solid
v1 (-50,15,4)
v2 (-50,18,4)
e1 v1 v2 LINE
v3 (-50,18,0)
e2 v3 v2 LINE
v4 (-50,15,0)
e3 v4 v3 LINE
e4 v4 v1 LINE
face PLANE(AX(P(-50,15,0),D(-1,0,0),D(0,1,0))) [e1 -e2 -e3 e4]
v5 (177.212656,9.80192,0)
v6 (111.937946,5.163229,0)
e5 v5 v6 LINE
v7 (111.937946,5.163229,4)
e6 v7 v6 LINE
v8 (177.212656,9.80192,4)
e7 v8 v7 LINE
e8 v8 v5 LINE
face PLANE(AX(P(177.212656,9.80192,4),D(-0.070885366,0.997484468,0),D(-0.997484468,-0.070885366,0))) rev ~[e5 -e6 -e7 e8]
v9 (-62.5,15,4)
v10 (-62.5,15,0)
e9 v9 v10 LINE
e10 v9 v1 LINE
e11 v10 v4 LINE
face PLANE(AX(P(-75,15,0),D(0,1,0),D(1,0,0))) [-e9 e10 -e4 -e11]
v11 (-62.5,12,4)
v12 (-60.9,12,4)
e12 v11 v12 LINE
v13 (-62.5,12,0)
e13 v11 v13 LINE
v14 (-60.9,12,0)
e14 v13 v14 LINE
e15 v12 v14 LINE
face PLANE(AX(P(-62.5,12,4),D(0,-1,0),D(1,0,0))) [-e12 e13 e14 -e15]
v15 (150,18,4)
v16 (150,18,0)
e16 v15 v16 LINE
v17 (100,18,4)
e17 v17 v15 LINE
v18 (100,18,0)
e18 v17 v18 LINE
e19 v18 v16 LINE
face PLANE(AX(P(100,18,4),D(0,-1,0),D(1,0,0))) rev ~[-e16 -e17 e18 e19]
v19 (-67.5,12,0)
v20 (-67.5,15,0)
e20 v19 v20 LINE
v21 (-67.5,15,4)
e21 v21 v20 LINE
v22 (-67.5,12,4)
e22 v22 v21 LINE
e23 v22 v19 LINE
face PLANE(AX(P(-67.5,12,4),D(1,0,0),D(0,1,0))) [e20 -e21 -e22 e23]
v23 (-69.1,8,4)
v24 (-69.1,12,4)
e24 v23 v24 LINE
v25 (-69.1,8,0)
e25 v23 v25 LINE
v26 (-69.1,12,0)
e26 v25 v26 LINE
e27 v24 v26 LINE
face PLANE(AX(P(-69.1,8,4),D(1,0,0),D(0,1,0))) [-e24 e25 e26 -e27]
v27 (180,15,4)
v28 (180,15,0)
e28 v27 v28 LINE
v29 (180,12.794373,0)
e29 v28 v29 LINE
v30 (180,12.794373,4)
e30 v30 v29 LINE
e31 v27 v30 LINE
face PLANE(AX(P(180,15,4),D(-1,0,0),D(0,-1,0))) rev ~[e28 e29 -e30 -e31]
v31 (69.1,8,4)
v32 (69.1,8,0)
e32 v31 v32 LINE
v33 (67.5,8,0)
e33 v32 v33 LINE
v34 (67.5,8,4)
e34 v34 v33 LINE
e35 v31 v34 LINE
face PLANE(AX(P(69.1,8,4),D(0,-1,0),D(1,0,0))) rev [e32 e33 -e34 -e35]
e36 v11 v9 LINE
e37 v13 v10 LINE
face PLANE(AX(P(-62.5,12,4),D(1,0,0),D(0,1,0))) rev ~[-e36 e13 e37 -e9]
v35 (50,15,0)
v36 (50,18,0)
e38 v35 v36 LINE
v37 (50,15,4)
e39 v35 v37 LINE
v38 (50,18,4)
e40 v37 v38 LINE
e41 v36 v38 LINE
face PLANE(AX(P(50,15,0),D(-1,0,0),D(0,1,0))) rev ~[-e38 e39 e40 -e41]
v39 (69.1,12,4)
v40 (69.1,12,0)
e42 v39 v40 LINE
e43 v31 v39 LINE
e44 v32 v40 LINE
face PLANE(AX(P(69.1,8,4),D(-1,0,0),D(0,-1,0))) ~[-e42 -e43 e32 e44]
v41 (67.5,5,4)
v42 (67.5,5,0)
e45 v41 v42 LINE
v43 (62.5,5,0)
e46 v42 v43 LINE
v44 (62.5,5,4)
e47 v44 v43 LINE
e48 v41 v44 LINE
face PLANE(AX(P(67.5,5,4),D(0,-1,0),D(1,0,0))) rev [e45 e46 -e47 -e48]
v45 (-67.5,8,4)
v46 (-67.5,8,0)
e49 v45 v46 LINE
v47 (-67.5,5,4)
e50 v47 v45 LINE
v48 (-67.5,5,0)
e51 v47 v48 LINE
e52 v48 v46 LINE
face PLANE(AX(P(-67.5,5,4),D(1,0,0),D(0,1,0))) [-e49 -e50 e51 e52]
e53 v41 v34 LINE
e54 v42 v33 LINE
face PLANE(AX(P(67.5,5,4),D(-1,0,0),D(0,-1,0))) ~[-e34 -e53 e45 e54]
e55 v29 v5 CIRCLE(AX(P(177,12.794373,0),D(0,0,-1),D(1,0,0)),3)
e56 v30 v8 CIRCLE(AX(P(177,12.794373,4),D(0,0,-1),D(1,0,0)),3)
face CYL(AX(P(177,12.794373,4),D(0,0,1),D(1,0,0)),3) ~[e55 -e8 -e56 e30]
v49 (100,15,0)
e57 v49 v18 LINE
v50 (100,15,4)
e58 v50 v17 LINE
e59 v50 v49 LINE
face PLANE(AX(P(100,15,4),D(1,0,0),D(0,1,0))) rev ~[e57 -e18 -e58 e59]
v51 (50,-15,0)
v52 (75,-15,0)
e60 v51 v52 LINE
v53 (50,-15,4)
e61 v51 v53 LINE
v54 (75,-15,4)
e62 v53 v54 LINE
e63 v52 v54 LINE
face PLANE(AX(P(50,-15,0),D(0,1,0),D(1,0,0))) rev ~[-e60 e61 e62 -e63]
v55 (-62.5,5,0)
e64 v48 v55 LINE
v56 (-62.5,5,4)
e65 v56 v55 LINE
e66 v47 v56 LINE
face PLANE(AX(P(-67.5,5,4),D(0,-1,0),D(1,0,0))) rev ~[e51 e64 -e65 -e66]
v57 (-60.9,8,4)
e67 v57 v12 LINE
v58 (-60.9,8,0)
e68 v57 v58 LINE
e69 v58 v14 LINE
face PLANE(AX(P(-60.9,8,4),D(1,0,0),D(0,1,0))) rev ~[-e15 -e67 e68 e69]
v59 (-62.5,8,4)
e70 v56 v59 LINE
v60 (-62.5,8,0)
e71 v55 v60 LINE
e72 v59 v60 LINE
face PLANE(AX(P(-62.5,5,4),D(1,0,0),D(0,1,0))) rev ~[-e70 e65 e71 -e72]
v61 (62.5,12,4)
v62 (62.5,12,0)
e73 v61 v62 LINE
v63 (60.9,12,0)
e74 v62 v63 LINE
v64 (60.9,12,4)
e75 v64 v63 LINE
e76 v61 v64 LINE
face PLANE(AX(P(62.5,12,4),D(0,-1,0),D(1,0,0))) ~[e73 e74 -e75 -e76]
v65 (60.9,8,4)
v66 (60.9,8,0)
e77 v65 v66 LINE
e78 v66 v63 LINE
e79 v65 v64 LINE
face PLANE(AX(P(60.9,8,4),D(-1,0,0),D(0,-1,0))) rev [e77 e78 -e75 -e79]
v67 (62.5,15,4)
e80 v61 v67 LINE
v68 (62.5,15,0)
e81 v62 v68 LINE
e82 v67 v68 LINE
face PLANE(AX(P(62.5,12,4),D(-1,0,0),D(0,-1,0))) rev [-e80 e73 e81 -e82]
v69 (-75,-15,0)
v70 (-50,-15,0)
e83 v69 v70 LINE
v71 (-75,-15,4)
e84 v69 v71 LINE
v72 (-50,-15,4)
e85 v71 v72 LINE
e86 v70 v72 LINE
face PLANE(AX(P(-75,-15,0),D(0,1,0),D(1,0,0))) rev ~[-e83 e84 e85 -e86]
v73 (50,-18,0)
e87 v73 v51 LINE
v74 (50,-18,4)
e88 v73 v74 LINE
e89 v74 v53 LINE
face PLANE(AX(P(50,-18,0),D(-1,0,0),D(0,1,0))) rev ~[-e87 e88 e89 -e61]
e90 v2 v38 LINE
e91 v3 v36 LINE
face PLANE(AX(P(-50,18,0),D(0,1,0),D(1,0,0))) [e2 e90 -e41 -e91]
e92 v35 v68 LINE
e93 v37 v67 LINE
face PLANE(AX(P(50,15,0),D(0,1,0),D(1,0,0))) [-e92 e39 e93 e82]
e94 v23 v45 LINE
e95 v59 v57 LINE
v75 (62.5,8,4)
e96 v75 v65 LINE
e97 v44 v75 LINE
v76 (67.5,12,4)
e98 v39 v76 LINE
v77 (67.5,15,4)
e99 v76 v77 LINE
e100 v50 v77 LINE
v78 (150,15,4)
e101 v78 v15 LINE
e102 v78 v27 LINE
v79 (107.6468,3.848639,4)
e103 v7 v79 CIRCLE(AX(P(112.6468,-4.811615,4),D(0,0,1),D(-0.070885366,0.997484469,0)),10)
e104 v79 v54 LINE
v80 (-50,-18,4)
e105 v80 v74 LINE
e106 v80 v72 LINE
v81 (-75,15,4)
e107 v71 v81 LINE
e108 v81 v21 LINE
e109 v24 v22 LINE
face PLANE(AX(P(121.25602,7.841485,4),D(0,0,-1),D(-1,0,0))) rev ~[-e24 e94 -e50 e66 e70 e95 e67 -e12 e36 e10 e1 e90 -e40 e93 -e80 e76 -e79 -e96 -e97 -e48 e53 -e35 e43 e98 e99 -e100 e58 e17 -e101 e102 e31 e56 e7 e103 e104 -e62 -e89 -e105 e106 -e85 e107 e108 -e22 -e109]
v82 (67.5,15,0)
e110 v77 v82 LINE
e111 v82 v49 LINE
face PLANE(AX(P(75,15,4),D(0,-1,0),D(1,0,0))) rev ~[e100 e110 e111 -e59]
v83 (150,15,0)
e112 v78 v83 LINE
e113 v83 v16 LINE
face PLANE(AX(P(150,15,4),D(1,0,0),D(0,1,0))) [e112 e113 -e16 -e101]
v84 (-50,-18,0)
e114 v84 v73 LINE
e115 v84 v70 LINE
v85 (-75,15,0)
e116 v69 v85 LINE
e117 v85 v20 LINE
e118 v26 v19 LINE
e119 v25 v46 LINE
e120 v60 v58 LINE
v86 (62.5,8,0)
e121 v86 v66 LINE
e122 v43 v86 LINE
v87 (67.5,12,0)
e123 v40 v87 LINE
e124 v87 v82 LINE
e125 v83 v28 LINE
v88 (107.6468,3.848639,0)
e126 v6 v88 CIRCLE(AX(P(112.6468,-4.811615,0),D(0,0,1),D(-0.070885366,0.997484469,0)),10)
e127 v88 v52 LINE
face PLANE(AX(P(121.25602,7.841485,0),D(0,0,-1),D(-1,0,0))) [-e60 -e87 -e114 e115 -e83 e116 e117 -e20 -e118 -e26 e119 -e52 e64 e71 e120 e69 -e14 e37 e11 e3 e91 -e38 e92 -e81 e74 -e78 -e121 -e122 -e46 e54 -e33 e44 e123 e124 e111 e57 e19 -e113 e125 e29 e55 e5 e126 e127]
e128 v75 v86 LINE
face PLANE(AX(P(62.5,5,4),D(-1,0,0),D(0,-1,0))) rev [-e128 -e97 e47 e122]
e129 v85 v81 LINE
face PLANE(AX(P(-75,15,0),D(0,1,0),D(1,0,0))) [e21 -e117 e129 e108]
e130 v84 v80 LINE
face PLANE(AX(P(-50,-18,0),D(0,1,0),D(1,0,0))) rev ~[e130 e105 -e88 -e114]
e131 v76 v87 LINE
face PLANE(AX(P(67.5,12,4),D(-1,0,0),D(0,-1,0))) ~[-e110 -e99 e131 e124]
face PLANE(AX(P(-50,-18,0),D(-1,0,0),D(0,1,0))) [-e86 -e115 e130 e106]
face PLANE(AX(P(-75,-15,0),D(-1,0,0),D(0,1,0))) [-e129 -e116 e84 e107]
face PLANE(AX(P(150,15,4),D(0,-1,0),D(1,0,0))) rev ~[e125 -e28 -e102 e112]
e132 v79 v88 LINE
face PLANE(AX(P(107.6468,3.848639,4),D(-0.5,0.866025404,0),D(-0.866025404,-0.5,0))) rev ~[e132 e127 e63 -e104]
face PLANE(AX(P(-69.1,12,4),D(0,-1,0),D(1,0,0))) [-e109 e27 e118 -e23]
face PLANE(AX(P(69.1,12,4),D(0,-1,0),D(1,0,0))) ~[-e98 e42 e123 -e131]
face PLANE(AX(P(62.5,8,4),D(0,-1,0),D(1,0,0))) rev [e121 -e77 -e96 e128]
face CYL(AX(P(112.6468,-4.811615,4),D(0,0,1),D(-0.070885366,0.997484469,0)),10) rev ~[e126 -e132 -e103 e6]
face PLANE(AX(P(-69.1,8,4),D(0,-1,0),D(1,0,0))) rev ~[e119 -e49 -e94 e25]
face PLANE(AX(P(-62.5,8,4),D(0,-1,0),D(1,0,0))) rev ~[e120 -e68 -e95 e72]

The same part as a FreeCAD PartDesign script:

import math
import FreeCAD as App
import Part
import Sketcher
from FreeCAD import Vector
Q = App.Units.Quantity


def add_polygon(sketch, points):
    """Adds a closed chain of lines whose ends are joined by coincident constraints."""
    first, n = sketch.GeometryCount, len(points)
    for a, b in zip(points, points[1:] + points[:1]):
        sketch.addGeometry(Part.LineSegment(App.Vector(*a, 0), App.Vector(*b, 0)), False)
    for i in range(n):
        sketch.addConstraint(Sketcher.Constraint("Coincident", first + i, 2, first + (i + 1) % n, 1))

doc = App.newDocument("Part")
body = doc.addObject("PartDesign::Body", "Body")

sketch1 = doc.addObject("Sketcher::SketchObject", "Sketch")
body.addObject(sketch1)
sketch1.AttachmentSupport = (doc.XY_Plane, [""])
sketch1.MapMode = "FlatFace"
add_polygon(sketch1, [(-75, 15), (-75, -15), (-50, -15), (-50, -18), (50, -18), (50, -15), (75, -15), (75, 15), (50, 15), (50, 18), (-50, 18), (-50, 15)])
sketch1.addConstraint(Sketcher.Constraint("Vertical", 0))
sketch1.addConstraint(Sketcher.Constraint("Horizontal", 1))
sketch1.addConstraint(Sketcher.Constraint("Vertical", 2))
sketch1.addConstraint(Sketcher.Constraint("Horizontal", 3))
sketch1.addConstraint(Sketcher.Constraint("Vertical", 4))
sketch1.addConstraint(Sketcher.Constraint("Horizontal", 5))
sketch1.addConstraint(Sketcher.Constraint("Vertical", 6))
sketch1.addConstraint(Sketcher.Constraint("Horizontal", 7))
sketch1.addConstraint(Sketcher.Constraint("Vertical", 8))
sketch1.addConstraint(Sketcher.Constraint("Horizontal", 9))
sketch1.addConstraint(Sketcher.Constraint("Vertical", 10))
sketch1.addConstraint(Sketcher.Constraint("Horizontal", 11))
sketch1.addConstraint(Sketcher.Constraint("Symmetric", 0, 2, 6, 2, -1, 1))
sketch1.addConstraint(Sketcher.Constraint("Symmetric", 2, 2, 8, 2, -1, 1))
sketch1.addConstraint(Sketcher.Constraint("Symmetric", 4, 2, 10, 2, -1, 1))
sketch1.addConstraint(Sketcher.Constraint("Symmetric", 1, 2, 4, 2, -2))
sketch1.addConstraint(Sketcher.Constraint("DistanceX", 1, 1, 1, 2, Q("25 mm")))
sketch1.addConstraint(Sketcher.Constraint("DistanceX", 3, 1, 3, 2, Q("100 mm")))
sketch1.addConstraint(Sketcher.Constraint("DistanceY", 0, 2, 0, 1, Q("30 mm")))
sketch1.addConstraint(Sketcher.Constraint("DistanceY", 2, 2, 2, 1, Q("3 mm")))
pad1 = doc.addObject("PartDesign::Pad", "Pad")
body.addObject(pad1)
pad1.Profile = sketch1
pad1.Length = 4

sketch2 = doc.addObject("Sketcher::SketchObject", "Sketch001")
body.addObject(sketch2)
sketch2.AttachmentSupport = (doc.XY_Plane, [""])
sketch2.MapMode = "FlatFace"
sketch2.AttachmentOffset = App.Placement(Vector(0, 0, 4), App.Rotation())
add_polygon(sketch2, [(-67.5, 8), (-67.5, 5), (-62.5, 5), (-62.5, 8), (-60.9, 8), (-60.9, 12), (-62.5, 12), (-62.5, 25), (-67.5, 25), (-67.5, 12), (-69.1, 12), (-69.1, 8)])
sketch2.addConstraint(Sketcher.Constraint("Vertical", 0))
sketch2.addConstraint(Sketcher.Constraint("Horizontal", 1))
sketch2.addConstraint(Sketcher.Constraint("Vertical", 2))
sketch2.addConstraint(Sketcher.Constraint("Horizontal", 3))
sketch2.addConstraint(Sketcher.Constraint("Vertical", 4))
sketch2.addConstraint(Sketcher.Constraint("Horizontal", 5))
sketch2.addConstraint(Sketcher.Constraint("Vertical", 6))
sketch2.addConstraint(Sketcher.Constraint("Horizontal", 7))
sketch2.addConstraint(Sketcher.Constraint("Vertical", 8))
sketch2.addConstraint(Sketcher.Constraint("Horizontal", 9))
sketch2.addConstraint(Sketcher.Constraint("Vertical", 10))
sketch2.addConstraint(Sketcher.Constraint("Horizontal", 11))
sketch2.addConstraint(Sketcher.Constraint("Horizontal", 5, 2, 8, 2))
sketch2.addConstraint(Sketcher.Constraint("Horizontal", 3, 2, 10, 2))
sketch2.addConstraint(Sketcher.Constraint("Vertical", 2, 2, 5, 2))
sketch2.addConstraint(Sketcher.Constraint("Vertical", 0, 2, 7, 2))
sketch2.addConstraint(Sketcher.Constraint("Equal", 5, 9))
sketch2.addConstraint(Sketcher.Constraint("DistanceX", 1, 1, 1, 2, Q("5 mm")))
sketch2.addConstraint(Sketcher.Constraint("DistanceY", 0, 2, 0, 1, Q("3 mm")))
sketch2.addConstraint(Sketcher.Constraint("DistanceY", 4, 1, 4, 2, Q("4 mm")))
sketch2.addConstraint(Sketcher.Constraint("DistanceY", 6, 1, 6, 2, Q("13 mm")))
sketch2.addConstraint(Sketcher.Constraint("DistanceX", 3, 1, 3, 2, Q("1.6 mm")))
sketch2.addConstraint(Sketcher.Constraint("DistanceY", -1, 1, 0, 2, Q("5 mm")))
sketch2.addConstraint(Sketcher.Constraint("DistanceX", 0, 2, -1, 1, Q("67.5 mm")))
pocket1 = doc.addObject("PartDesign::Pocket", "Pocket")
body.addObject(pocket1)
pocket1.Profile = sketch2
pocket1.Length = 10
doc.recompute()

mirrored = doc.addObject("PartDesign::Mirrored", "Mirrored")
body.addObject(mirrored)
mirrored.Originals = [pocket1]
mirrored.MirrorPlane = (doc.YZ_Plane, [""])
body.Tip = mirrored

sketch3 = doc.addObject("Sketcher::SketchObject", "Sketch002")
body.addObject(sketch3)
sketch3.AttachmentSupport = (doc.XY_Plane, [""])
sketch3.MapMode = "FlatFace"
sketch3.AttachmentOffset = App.Placement(Vector(0, 0, 4), App.Rotation())
sketch3.addGeometry(Part.ArcOfCircle(Part.Circle(Vector(177, 12.8, 0), Vector(0, 0, 1), 3), math.radians(-86), math.radians(0)), False)
sketch3.addGeometry(Part.LineSegment(Vector(180, 12.8, 0), Vector(180, 15, 0)), False)
sketch3.addGeometry(Part.LineSegment(Vector(180, 15, 0), Vector(150, 15, 0)), False)
sketch3.addGeometry(Part.LineSegment(Vector(150, 15, 0), Vector(150, 18, 0)), False)
sketch3.addGeometry(Part.LineSegment(Vector(150, 18, 0), Vector(100, 18, 0)), False)
sketch3.addGeometry(Part.LineSegment(Vector(100, 18, 0), Vector(100, 15, 0)), False)
sketch3.addGeometry(Part.LineSegment(Vector(100, 15, 0), Vector(75, 15, 0)), False)
sketch3.addGeometry(Part.LineSegment(Vector(75, 15, 0), Vector(75, -15, 0)), False)
sketch3.addGeometry(Part.LineSegment(Vector(75, -15, 0), Vector(107.6, 3.8, 0)), False)
sketch3.addGeometry(Part.ArcOfCircle(Part.Circle(Vector(112.6, -4.8, 0), Vector(0, 0, 1), 10), math.radians(94), math.radians(120)), False)
sketch3.addGeometry(Part.LineSegment(Vector(111.9, 5.2, 0), Vector(177.2, 9.8, 0)), False)
sketch3.addConstraint(Sketcher.Constraint("Tangent", 0, 2, 1, 1))
sketch3.addConstraint(Sketcher.Constraint("Coincident", 1, 2, 2, 1))
sketch3.addConstraint(Sketcher.Constraint("Coincident", 2, 2, 3, 1))
sketch3.addConstraint(Sketcher.Constraint("Coincident", 3, 2, 4, 1))
sketch3.addConstraint(Sketcher.Constraint("Coincident", 4, 2, 5, 1))
sketch3.addConstraint(Sketcher.Constraint("Coincident", 5, 2, 6, 1))
sketch3.addConstraint(Sketcher.Constraint("Coincident", 6, 2, 7, 1))
sketch3.addConstraint(Sketcher.Constraint("Coincident", 7, 2, 8, 1))
sketch3.addConstraint(Sketcher.Constraint("Tangent", 8, 2, 9, 2))
sketch3.addConstraint(Sketcher.Constraint("Tangent", 9, 1, 10, 1))
sketch3.addConstraint(Sketcher.Constraint("Tangent", 10, 2, 0, 1))
sketch3.addConstraint(Sketcher.Constraint("Vertical", 1))
sketch3.addConstraint(Sketcher.Constraint("Horizontal", 2))
sketch3.addConstraint(Sketcher.Constraint("Vertical", 3))
sketch3.addConstraint(Sketcher.Constraint("Horizontal", 4))
sketch3.addConstraint(Sketcher.Constraint("Vertical", 5))
sketch3.addConstraint(Sketcher.Constraint("Horizontal", 6))
sketch3.addConstraint(Sketcher.Constraint("Vertical", 7))
sketch3.addConstraint(Sketcher.Constraint("Horizontal", 2, 2, 5, 2))
sketch3.addConstraint(Sketcher.Constraint("Equal", 2, 7))
sketch3.addConstraint(Sketcher.Constraint("Radius", 0, Q("3 mm")))
sketch3.addConstraint(Sketcher.Constraint("Radius", 9, Q("10 mm")))
sketch3.addConstraint(Sketcher.Constraint("DistanceX", 2, 2, 2, 1, Q("30 mm")))
sketch3.addConstraint(Sketcher.Constraint("DistanceX", 4, 2, 4, 1, Q("50 mm")))
sketch3.addConstraint(Sketcher.Constraint("DistanceX", 6, 2, 6, 1, Q("25 mm")))
sketch3.addConstraint(Sketcher.Constraint("DistanceY", 3, 1, 3, 2, Q("3 mm")))
sketch3.addConstraint(Sketcher.Constraint("Angle", 8, Q("30 deg")))
sketch3.addConstraint(Sketcher.Constraint("DistanceX", -1, 1, 0, 3, Q("177 mm")))
sketch3.addConstraint(Sketcher.Constraint("DistanceY", -1, 1, 1, 2, Q("15 mm")))
sketch3.addConstraint(Sketcher.Constraint("DistanceX", -1, 1, 9, 3, Q("112.6468 mm")))
sketch3.addConstraint(Sketcher.Constraint("DistanceY", 1, 1, 1, 2, Q("2.205627 mm")))
pad2 = doc.addObject("PartDesign::Pad", "Pad001")
body.addObject(pad2)
pad2.Profile = sketch3
pad2.Length = 4
pad2.Reversed = True

doc.recompute()
